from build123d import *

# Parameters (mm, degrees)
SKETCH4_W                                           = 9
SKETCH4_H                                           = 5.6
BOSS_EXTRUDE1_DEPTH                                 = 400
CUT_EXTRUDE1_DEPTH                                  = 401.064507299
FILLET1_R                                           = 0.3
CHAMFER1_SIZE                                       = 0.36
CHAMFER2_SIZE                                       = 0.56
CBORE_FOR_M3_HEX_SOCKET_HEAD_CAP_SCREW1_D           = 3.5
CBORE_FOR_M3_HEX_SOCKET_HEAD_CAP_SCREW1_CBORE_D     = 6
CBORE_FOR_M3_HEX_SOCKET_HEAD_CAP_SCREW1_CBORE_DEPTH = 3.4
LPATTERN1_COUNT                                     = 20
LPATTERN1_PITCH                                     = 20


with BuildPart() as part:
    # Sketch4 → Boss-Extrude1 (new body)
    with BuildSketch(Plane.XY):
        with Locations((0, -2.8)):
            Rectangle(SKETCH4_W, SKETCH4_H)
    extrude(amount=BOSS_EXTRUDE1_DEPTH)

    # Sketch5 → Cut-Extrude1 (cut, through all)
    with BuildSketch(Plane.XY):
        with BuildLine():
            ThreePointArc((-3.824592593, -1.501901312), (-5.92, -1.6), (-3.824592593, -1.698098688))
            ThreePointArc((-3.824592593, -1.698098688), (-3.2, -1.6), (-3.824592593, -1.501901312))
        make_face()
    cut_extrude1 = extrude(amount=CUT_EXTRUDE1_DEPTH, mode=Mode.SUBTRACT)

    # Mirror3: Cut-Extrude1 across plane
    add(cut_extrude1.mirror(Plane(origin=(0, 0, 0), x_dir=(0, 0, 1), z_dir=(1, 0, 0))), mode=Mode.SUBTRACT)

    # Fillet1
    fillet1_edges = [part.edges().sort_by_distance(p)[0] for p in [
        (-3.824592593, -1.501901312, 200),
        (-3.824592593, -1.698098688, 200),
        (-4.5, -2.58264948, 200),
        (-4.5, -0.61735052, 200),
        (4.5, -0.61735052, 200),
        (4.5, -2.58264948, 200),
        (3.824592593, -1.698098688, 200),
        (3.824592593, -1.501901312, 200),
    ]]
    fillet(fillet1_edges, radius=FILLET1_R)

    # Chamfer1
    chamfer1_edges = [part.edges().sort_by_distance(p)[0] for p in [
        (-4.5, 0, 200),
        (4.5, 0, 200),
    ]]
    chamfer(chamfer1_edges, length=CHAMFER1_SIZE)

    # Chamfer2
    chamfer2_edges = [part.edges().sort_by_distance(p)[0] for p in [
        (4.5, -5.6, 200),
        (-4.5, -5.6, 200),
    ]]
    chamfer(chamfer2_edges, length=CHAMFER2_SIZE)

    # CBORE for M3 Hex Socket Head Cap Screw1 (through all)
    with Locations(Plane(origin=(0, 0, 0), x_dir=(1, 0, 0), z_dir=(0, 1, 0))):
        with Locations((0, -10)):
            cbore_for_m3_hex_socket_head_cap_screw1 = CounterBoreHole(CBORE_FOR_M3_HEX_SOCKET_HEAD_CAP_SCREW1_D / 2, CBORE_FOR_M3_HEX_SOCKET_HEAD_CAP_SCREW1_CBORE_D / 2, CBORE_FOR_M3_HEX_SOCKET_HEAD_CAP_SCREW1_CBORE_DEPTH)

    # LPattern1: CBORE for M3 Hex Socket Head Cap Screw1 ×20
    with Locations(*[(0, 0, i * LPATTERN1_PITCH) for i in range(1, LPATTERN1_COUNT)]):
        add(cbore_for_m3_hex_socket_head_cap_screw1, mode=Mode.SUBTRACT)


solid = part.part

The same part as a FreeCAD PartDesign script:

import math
import FreeCAD as App
import Part
import Sketcher

V = App.Vector
Q = App.Units.Quantity


def edges_at(feature, points):
    """Names of the edges that pass closest to the given points."""
    edges = feature.Shape.Edges
    near = lambda p: min(range(len(edges)), key=lambda i: edges[i].distToShape(Part.Vertex(*p))[0])
    return sorted({f"Edge{near(p) + 1}" for p in points})


def add_polygon(sketch, points):
    """Adds a closed chain of lines whose ends are joined by coincident constraints."""
    first, n = sketch.GeometryCount, len(points)
    for a, b in zip(points, points[1:] + points[:1]):
        sketch.addGeometry(Part.LineSegment(App.Vector(*a, 0), App.Vector(*b, 0)), False)
    for i in range(n):
        sketch.addConstraint(Sketcher.Constraint("Coincident", first + i, 2, first + (i + 1) % n, 1))

doc = App.newDocument("Part")
body = doc.addObject("PartDesign::Body", "Body")

# Sketch on XY plane
sketch1 = doc.addObject("Sketcher::SketchObject", "Sketch")
body.addObject(sketch1)
sketch1.AttachmentSupport = (doc.XY_Plane, [""])
sketch1.MapMode = "FlatFace"
add_polygon(sketch1, [(-4, 0), (-4, -6), (4, -6), (4, 0)])  # lines 0-3
sketch1.addConstraint([
    Sketcher.Constraint("Vertical", 0),
    Sketcher.Constraint("Horizontal", 1),
    Sketcher.Constraint("Vertical", 2),
    Sketcher.Constraint("Horizontal", 3),
    Sketcher.Constraint("Symmetric", 2, 2, 3, 2, -1, 1),
    Sketcher.Constraint("DistanceX", 1, 1, 1, 2, Q("9 mm")),
    Sketcher.Constraint("DistanceY", 0, 2, 0, 1, Q("5.6 mm")),
])
pad1 = doc.addObject("PartDesign::Pad", "Pad")
body.addObject(pad1)
pad1.Profile = sketch1
pad1.Length = 400

# Sketch on XY plane
sketch2 = doc.addObject("Sketcher::SketchObject", "Sketch001")
body.addObject(sketch2)
sketch2.AttachmentSupport = (doc.XY_Plane, [""])
sketch2.MapMode = "FlatFace"
sketch2.addGeometry([
    Part.ArcOfCircle(Part.Circle(V(-4.87, -1.6, 0), V(0, 0, 1), 1.05), math.radians(5), math.radians(355)),
    Part.ArcOfCircle(Part.Circle(V(-3.52, -1.6, 0), V(0, 0, 1), 0.32), math.radians(-162), math.radians(162)),
], False)
sketch2.addConstraint([
    Sketcher.Constraint("Coincident", 0, 1, 1, 2),
    Sketcher.Constraint("Coincident", 1, 1, 0, 2),
    Sketcher.Constraint("Horizontal", 0, 3, 1, 3),
    Sketcher.Constraint("Radius", 0, Q("1.05 mm")),
    Sketcher.Constraint("Radius", 1, Q("0.32 mm")),
    Sketcher.Constraint("DistanceY", 0, 3, -1, 1, Q("1.6 mm")),
    Sketcher.Constraint("DistanceX", 0, 3, -1, 1, Q("4.87 mm")),
    Sketcher.Constraint("DistanceX", 1, 3, -1, 1, Q("3.52 mm")),
])
pocket1 = doc.addObject("PartDesign::Pocket", "Pocket")
body.addObject(pocket1)
pocket1.Profile = sketch2
pocket1.Type = "ThroughAll"
pocket1.Reversed = True
doc.recompute()

mirrored = doc.addObject("PartDesign::Mirrored", "Mirrored")
body.addObject(mirrored)
mirrored.Originals = [pocket1]
mirrored.MirrorPlane = (doc.YZ_Plane, [""])
body.Tip = mirrored
doc.recompute()

fillet = doc.addObject("PartDesign::Fillet", "Fillet")
body.addObject(fillet)
fillet.Base = (mirrored, edges_at(mirrored, [
    (-3.825, -1.502, 200),
    (-3.825, -1.698, 200),
    (-4.5, -2.583, 200),
    (-4.5, -0.617, 200),
    (4.5, -0.617, 200),
    (4.5, -2.583, 200),
    (3.825, -1.698, 200),
    (3.825, -1.502, 200),
]))
fillet.Radius = 0.3
doc.recompute()

chamfer = doc.addObject("PartDesign::Chamfer", "Chamfer")
body.addObject(chamfer)
chamfer.Base = (fillet, edges_at(fillet, [(-4.5, 0, 200), (4.5, 0, 200)]))
chamfer.Size = 0.36
doc.recompute()

chamfer2 = doc.addObject("PartDesign::Chamfer", "Chamfer001")
body.addObject(chamfer2)
chamfer2.Base = (chamfer, edges_at(chamfer, [(4.5, -5.6, 200), (-4.5, -5.6, 200)]))
chamfer2.Size = 0.56

# Sketch on XZ plane
sketch3 = doc.addObject("Sketcher::SketchObject", "Sketch002")
body.addObject(sketch3)
sketch3.AttachmentSupport = (doc.XZ_Plane, [""])
sketch3.MapMode = "FlatFace"
sketch3.addGeometry(Part.Circle(V(0, 10, 0), V(0, 0, 1), 1.8), False)
sketch3.addConstraint([
    Sketcher.Constraint("PointOnObject", 0, 3, -2),
    Sketcher.Constraint("Diameter", 0, Q("3.5 mm")),
    Sketcher.Constraint("DistanceY", -1, 1, 0, 3, Q("10 mm")),
])
doc.recompute()
hole = doc.addObject("PartDesign::Hole", "Hole")
body.addObject(hole)
hole.Profile = sketch3
hole.ThreadType = "None"
hole.Diameter = 3.5
hole.DepthType = "ThroughAll"
hole.HoleCutType = "Counterbore"
hole.HoleCutDiameter = 6
hole.HoleCutDepth = 3.4
hole.Reversed = True
doc.recompute()

linearpattern = doc.addObject("PartDesign::LinearPattern", "LinearPattern")
body.addObject(linearpattern)
linearpattern.Originals = [hole]
linearpattern.Direction = (doc.Z_Axis, [""])
linearpattern.Mode = "offset"
linearpattern.Offset = 20
linearpattern.Occurrences = 20
body.Tip = linearpattern

doc.recompute()
